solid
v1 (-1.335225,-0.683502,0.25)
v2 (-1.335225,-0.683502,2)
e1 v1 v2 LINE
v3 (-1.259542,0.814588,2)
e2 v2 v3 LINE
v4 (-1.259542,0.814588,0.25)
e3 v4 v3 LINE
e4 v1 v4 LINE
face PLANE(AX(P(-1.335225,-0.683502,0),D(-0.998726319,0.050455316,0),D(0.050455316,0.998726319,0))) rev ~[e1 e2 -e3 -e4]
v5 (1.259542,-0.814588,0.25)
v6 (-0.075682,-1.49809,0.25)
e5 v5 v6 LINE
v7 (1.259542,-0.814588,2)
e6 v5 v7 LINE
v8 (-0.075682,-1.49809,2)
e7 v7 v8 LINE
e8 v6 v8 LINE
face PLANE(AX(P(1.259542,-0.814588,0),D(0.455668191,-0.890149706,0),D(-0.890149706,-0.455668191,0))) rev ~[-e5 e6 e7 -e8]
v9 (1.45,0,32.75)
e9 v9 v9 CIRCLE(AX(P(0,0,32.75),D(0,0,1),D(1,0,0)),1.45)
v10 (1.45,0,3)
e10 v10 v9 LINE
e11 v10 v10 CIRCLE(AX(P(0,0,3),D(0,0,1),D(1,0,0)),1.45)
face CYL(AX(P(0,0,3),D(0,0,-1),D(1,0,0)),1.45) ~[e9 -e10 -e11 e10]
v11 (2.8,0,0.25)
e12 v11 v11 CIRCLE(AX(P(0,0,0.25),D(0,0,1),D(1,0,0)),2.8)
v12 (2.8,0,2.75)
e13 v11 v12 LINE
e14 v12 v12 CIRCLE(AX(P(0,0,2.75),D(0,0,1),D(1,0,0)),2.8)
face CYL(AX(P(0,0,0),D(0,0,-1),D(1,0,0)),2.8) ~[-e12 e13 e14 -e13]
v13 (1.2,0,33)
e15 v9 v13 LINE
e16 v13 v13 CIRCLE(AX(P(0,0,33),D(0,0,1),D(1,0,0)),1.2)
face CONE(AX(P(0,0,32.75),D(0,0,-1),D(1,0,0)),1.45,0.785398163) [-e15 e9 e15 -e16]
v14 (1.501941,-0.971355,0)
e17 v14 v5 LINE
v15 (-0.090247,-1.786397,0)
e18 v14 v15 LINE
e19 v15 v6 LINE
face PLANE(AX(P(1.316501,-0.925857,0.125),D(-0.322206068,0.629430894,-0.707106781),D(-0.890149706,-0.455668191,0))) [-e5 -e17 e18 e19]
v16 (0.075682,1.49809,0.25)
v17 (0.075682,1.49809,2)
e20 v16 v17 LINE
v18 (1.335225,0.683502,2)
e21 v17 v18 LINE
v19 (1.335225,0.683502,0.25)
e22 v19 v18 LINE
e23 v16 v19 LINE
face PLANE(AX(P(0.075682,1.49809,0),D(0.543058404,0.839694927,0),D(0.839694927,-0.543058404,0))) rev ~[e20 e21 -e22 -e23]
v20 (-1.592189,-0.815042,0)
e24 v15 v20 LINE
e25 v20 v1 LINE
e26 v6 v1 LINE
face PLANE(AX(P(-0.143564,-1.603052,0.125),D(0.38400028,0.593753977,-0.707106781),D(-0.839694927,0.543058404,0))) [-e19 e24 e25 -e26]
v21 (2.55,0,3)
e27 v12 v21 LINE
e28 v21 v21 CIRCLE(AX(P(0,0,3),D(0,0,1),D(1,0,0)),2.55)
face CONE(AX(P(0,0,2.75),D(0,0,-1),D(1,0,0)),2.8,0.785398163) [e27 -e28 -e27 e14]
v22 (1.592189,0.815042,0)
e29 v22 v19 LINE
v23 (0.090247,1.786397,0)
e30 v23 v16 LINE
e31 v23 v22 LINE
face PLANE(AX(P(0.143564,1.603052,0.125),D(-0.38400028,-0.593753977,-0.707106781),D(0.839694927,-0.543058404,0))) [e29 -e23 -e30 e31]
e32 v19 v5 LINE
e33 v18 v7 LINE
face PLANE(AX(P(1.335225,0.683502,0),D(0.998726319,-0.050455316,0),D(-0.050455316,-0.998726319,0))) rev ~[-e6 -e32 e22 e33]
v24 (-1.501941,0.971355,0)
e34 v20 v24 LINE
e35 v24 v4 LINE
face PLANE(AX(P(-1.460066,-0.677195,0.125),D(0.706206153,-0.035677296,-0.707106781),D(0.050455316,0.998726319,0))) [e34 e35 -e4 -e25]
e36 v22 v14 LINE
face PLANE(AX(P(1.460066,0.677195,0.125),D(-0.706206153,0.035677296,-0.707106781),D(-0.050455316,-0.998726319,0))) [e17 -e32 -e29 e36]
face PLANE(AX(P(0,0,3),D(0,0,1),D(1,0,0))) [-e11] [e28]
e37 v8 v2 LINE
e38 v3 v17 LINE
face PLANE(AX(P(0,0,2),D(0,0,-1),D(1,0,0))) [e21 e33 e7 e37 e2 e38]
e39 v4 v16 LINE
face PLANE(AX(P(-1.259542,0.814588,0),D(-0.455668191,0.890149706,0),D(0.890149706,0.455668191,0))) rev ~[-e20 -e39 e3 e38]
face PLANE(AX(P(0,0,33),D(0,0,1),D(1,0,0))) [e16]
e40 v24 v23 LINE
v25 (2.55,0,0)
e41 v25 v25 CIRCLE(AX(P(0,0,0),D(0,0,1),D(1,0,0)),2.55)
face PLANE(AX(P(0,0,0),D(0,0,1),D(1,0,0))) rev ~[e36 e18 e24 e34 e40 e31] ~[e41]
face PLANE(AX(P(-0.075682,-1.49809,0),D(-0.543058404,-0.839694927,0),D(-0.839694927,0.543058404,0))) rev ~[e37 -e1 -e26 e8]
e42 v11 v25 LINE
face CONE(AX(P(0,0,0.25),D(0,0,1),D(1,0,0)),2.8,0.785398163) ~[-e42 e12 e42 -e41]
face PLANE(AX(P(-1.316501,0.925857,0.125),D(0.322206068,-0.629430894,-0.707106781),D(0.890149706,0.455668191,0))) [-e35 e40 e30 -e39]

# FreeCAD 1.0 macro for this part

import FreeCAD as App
import Part
import Sketcher

V = App.Vector


def edges_at(feature, points):
    """Names of the edges that pass closest to the given points."""
    edges = feature.Shape.Edges
    near = lambda p: min(range(len(edges)), key=lambda i: edges[i].distToShape(Part.Vertex(*p))[0])
    return sorted({f"Edge{near(p) + 1}" for p in points})

doc = App.newDocument("Part")
params = doc.addObject("Spreadsheet::Sheet", "Params")
for row, (alias, value) in enumerate([
    ("sketch1_diameter", "5.6 mm"),
    ("pad1_length", "3 mm"),
    ("sketch2_diameter", "2.9 mm"),
    ("pad2_length", "30 mm"),
    ("sketch3_length", "1.499999 mm"),
    ("pocket1_length", "2 mm"),
    ("chamfer_size", "0.25 mm"),
], start=1):
    params.set(f"A{row}", alias)
    params.set(f"B{row}", "=" + value)
    params.setAlias(f"B{row}", alias)

body = doc.addObject("PartDesign::Body", "Body")

sketch1 = body.newObject("Sketcher::SketchObject", "Sketch")
sketch1.AttachmentSupport = (doc.getObject("XY_Plane"), [""])
sketch1.MapMode = "FlatFace"
sketch1.addGeometry(Part.Circle(V(0, 0, 0), V(0, 0, 1), 2.8), False)
sketch1.addConstraint([
    Sketcher.Constraint("Coincident", 0, 3, -1, 1),
    Sketcher.Constraint("Diameter", 0, 5.6),
])
sketch1.setExpression("Constraints[1]", "Params.sketch1_diameter")
pad1 = body.newObject("PartDesign::Pad", "Pad")
pad1.Profile = sketch1
pad1.setExpression("Length", "Params.pad1_length")

sketch2 = body.newObject("Sketcher::SketchObject", "Sketch001")
sketch2.AttachmentSupport = (doc.getObject("XY_Plane"), [""])
sketch2.MapMode = "FlatFace"
sketch2.AttachmentOffset = App.Placement(V(0, 0, 3), App.Rotation())
sketch2.addGeometry(Part.Circle(V(0, 0, 0), V(0, 0, 1), 1.4), False)
sketch2.addConstraint([
    Sketcher.Constraint("Coincident", 0, 3, -1, 1),
    Sketcher.Constraint("Diameter", 0, 2.9),
])
sketch2.setExpression("Constraints[1]", "Params.sketch2_diameter")
pad2 = body.newObject("PartDesign::Pad", "Pad001")
pad2.Profile = sketch2
pad2.setExpression("Length", "Params.pad2_length")

sketch3 = body.newObject("Sketcher::SketchObject", "Sketch002")
sketch3.AttachmentSupport = (doc.getObject("XY_Plane"), [""])
sketch3.MapMode = "FlatFace"
sketch3.addGeometry([
    Part.LineSegment(V(1.3, -0.8, 0), V(-0.1, -1.5, 0)),
    Part.LineSegment(V(-0.1, -1.5, 0), V(-1.3, -0.7, 0)),
    Part.LineSegment(V(-1.3, -0.7, 0), V(-1.3, 0.8, 0)),
    Part.LineSegment(V(-1.3, 0.8, 0), V(0.1, 1.5, 0)),
    Part.LineSegment(V(0.1, 1.5, 0), V(1.3, 0.7, 0)),
    Part.LineSegment(V(1.3, 0.7, 0), V(1.3, -0.8, 0)),
], False)
sketch3.addConstraint([
    Sketcher.Constraint("Coincident", 0, 2, 1, 1),
    Sketcher.Constraint("Coincident", 1, 2, 2, 1),
    Sketcher.Constraint("Coincident", 2, 2, 3, 1),
    Sketcher.Constraint("Coincident", 3, 2, 4, 1),
    Sketcher.Constraint("Coincident", 4, 2, 5, 1),
    Sketcher.Constraint("Coincident", 5, 2, 0, 1),
    Sketcher.Constraint("Symmetric", 0, 2, 3, 2, -1, 1),
    Sketcher.Constraint("Symmetric", 1, 2, 4, 2, -1, 1),
    Sketcher.Constraint("Symmetric", 2, 2, 5, 2, -1, 1),
    Sketcher.Constraint("Equal", 0, 1),
    Sketcher.Constraint("Equal", 1, 2),
    Sketcher.Constraint("Distance", 0, 1.499999),
    Sketcher.Constraint("DistanceY", 2, 2, 3, 2, 0.683502),
    Sketcher.Constraint("DistanceY", 0, 2, -1, 1, 1.49809),
    Sketcher.Constraint("DistanceX", 2, 2, -1, 1, 1.259542),
])
sketch3.setExpression("Constraints[11]", "Params.sketch3_length")
pocket1 = body.newObject("PartDesign::Pocket", "Pocket")
pocket1.Profile = sketch3
pocket1.setExpression("Length", "Params.pocket1_length")
pocket1.Reversed = True
doc.recompute()

chamfer = body.newObject("PartDesign::Chamfer", "Chamfer")
chamfer.Base = (pocket1, edges_at(pocket1, [
    (-2.8, 0, 3),
    (-2.8, 0, 0),
    (1.297, -0.066, 0),
    (0.705, 1.091, 0),
    (-0.592, 1.156, 0),
    (-1.297, 0.066, 0),
    (-0.705, -1.091, 0),
    (0.592, -1.156, 0),
    (-1.45, 0, 33),
]))
chamfer.setExpression("Size", "Params.chamfer_size")

doc.recompute()
